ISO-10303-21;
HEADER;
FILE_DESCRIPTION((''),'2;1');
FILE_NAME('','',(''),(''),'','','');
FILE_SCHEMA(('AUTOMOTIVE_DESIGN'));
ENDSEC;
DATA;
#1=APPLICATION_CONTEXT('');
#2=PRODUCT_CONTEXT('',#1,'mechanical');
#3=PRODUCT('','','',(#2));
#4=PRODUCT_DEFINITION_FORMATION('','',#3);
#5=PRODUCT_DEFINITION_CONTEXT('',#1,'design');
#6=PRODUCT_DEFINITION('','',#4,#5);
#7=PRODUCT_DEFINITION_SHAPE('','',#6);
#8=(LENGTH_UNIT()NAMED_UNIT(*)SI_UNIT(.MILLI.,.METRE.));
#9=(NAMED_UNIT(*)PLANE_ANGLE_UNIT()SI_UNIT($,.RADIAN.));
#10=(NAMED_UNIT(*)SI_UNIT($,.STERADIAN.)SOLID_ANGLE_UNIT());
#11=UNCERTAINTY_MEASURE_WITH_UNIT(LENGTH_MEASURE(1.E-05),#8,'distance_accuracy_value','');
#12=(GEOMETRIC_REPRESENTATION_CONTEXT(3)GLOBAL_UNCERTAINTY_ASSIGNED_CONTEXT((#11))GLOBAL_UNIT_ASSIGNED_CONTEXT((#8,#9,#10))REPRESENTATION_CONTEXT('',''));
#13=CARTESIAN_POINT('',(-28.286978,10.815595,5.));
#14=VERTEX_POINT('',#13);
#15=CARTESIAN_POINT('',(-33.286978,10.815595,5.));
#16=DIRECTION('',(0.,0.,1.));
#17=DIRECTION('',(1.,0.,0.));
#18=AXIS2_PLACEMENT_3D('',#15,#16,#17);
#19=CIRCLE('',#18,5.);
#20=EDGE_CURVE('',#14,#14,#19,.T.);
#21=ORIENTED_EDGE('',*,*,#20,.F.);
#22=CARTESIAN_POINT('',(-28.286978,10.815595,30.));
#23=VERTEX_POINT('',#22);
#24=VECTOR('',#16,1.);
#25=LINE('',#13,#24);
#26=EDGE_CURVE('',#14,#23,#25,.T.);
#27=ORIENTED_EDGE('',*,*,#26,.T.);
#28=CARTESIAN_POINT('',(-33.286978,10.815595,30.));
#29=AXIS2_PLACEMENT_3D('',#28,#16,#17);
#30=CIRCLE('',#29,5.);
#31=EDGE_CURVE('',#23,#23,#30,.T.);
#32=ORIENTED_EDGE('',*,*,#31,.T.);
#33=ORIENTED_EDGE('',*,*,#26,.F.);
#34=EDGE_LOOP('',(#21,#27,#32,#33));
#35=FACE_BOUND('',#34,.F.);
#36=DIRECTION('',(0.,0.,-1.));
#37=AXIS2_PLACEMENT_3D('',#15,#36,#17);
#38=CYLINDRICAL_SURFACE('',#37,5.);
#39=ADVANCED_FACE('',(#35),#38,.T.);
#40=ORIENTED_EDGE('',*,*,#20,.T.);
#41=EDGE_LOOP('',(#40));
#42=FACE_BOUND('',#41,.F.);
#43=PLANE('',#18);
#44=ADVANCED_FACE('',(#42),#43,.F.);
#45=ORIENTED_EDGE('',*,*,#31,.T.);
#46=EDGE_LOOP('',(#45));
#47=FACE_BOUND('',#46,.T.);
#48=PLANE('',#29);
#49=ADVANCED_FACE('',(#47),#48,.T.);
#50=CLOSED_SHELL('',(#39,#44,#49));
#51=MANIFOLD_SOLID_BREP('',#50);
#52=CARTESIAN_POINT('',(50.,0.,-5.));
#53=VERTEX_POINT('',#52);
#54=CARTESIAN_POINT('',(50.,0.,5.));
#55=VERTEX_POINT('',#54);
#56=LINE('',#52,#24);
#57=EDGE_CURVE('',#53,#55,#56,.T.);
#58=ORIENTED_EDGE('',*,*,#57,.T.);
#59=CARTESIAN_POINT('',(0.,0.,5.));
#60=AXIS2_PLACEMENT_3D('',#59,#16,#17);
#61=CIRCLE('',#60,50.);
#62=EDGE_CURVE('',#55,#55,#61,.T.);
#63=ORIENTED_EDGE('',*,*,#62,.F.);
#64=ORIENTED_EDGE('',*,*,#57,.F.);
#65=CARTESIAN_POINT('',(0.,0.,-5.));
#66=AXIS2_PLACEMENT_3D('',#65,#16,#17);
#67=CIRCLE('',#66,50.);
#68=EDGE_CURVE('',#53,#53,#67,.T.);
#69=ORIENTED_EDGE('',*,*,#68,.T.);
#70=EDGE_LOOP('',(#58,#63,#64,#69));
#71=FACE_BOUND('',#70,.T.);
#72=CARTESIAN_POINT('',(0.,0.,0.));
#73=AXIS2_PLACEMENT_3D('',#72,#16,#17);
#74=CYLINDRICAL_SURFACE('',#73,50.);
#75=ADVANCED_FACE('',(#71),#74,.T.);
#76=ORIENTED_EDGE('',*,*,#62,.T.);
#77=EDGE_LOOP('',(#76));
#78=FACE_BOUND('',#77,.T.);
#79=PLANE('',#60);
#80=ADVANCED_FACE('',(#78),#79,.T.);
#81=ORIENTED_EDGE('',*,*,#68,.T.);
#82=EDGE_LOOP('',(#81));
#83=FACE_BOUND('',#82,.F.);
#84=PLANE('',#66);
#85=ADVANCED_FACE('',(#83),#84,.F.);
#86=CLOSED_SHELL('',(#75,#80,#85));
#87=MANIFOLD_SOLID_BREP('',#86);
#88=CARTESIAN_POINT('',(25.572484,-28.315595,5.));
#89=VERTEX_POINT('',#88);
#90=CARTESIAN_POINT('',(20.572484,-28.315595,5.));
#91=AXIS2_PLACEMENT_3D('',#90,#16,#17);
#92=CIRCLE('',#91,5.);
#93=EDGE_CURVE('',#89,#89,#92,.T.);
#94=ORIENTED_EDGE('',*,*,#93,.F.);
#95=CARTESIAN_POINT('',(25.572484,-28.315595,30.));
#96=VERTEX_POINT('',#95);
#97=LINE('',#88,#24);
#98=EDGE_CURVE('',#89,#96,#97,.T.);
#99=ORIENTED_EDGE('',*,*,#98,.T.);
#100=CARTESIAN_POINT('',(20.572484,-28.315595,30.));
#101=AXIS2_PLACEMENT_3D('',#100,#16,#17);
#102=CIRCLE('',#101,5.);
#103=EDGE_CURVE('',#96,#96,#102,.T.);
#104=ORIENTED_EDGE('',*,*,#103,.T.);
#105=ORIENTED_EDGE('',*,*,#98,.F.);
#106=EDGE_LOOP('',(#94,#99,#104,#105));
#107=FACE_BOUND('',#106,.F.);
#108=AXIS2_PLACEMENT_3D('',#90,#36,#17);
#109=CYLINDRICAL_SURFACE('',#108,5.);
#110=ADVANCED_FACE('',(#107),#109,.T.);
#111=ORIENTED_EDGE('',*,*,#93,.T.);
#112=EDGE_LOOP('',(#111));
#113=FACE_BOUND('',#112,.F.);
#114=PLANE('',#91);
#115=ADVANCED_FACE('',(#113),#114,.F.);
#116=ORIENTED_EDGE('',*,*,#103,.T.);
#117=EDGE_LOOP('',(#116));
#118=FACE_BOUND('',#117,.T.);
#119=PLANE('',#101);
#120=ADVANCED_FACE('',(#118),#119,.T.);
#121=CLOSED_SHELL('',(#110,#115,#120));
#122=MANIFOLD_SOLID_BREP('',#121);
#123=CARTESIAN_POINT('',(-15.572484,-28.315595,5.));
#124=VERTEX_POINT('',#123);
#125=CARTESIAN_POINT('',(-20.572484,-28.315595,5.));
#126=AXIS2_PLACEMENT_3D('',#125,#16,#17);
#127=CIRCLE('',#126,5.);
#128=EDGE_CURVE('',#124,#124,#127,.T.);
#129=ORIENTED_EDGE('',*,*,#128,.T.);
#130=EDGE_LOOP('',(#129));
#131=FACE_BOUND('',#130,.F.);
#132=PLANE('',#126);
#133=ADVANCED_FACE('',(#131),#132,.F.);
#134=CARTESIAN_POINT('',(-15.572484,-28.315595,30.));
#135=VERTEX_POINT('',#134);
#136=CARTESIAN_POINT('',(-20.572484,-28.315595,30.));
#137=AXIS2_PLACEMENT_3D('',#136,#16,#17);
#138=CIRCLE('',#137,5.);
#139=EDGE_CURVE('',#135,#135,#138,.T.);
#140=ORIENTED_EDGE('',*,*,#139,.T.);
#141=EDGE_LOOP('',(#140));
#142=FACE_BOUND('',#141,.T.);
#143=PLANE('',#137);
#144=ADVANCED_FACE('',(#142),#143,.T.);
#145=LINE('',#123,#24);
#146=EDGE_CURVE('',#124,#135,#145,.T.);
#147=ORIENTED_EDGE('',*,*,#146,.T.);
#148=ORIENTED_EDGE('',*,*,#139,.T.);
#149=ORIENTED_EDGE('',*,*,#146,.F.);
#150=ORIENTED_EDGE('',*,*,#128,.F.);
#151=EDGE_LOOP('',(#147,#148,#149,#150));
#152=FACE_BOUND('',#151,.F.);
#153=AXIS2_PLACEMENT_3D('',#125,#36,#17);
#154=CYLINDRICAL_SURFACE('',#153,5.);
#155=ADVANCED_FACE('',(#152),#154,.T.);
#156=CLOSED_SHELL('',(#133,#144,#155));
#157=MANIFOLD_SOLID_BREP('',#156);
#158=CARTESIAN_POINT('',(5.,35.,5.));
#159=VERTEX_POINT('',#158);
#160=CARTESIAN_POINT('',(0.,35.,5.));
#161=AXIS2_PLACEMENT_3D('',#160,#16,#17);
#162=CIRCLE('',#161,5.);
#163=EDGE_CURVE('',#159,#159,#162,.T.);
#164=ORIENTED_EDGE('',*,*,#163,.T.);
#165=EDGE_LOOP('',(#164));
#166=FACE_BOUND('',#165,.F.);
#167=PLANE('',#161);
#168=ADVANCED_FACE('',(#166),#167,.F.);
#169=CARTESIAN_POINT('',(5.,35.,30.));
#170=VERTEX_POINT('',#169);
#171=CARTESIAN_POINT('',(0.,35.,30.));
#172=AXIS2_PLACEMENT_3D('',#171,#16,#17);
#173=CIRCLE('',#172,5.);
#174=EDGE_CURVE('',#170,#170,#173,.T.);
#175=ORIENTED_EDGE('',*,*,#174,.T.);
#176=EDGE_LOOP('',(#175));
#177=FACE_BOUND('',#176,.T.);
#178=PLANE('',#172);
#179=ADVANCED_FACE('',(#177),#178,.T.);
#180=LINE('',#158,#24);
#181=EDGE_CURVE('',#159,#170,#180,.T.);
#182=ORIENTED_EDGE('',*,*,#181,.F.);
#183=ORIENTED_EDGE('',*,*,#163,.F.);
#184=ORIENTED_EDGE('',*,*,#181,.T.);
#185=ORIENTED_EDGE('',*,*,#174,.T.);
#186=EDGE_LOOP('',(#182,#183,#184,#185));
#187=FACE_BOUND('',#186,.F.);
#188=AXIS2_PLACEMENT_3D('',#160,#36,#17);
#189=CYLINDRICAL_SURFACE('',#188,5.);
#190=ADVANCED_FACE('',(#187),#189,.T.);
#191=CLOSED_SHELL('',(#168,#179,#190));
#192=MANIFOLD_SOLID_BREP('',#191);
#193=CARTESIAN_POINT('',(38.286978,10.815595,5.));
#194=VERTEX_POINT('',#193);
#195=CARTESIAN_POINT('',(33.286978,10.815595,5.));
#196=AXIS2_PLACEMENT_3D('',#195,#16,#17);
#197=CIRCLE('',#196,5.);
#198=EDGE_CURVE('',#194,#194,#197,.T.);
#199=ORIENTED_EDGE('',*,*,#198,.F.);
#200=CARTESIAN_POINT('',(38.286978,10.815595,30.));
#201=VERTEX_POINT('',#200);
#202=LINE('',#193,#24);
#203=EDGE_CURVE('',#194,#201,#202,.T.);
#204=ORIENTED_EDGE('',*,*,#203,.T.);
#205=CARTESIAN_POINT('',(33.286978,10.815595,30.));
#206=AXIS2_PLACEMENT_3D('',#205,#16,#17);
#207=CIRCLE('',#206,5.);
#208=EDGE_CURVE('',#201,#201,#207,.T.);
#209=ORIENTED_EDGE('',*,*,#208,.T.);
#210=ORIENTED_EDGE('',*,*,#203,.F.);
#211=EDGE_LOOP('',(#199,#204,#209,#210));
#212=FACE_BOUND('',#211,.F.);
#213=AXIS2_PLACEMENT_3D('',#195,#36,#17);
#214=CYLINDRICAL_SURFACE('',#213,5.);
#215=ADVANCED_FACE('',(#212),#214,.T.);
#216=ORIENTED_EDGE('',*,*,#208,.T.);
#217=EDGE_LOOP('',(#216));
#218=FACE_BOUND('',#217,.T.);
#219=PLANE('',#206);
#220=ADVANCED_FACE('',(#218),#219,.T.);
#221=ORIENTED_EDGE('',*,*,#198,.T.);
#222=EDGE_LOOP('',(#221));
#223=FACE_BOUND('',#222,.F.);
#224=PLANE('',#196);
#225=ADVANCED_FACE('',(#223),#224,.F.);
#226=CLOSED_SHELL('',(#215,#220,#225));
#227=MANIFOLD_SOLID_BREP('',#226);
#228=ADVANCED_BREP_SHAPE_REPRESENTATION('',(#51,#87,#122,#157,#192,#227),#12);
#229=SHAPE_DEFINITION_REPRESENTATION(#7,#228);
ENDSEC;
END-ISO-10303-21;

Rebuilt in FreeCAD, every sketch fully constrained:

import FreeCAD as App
import Part
import Sketcher
from FreeCAD import Vector

doc = App.newDocument("Part")
params = doc.addObject("Spreadsheet::Sheet", "Params")
for row, (alias, value) in enumerate([
    ("sketch1_diameter", "100 mm"),
    ("pad1_length", "10 mm"),
    ("sketch2_diameter", "10 mm"),
    ("pad2_length", "25 mm"),
], start=1):
    params.set(f"A{row}", alias)
    params.set(f"B{row}", "=" + value)
    params.setAlias(f"B{row}", alias)

body = doc.addObject("PartDesign::Body", "Body")

sketch1 = doc.addObject("Sketcher::SketchObject", "Sketch")
body.addObject(sketch1)
sketch1.AttachmentSupport = (doc.XY_Plane, [""])
sketch1.MapMode = "FlatFace"
sketch1.addGeometry(Part.Circle(Vector(0, 0, 0), Vector(0, 0, 1), 50), False)
sketch1.addConstraint([
    Sketcher.Constraint("Coincident", 0, 3, -1, 1),
    Sketcher.Constraint("Diameter", 0, 100.0),
])
sketch1.setExpression("Constraints[1]", "Params.sketch1_diameter")
pad1 = doc.addObject("PartDesign::Pad", "Pad")
body.addObject(pad1)
pad1.Profile = sketch1
pad1.setExpression("Length", "Params.pad1_length")
pad1.Midplane = True
body2 = doc.addObject("PartDesign::Body", "Body001")
body2.AllowCompound = True

sketch2 = doc.addObject("Sketcher::SketchObject", "Sketch001")
body2.addObject(sketch2)
sketch2.AttachmentSupport = (doc.getObject("XY_Plane001"), [""])
sketch2.MapMode = "FlatFace"
sketch2.AttachmentOffset = App.Placement(Vector(0, 0, 5), App.Rotation())
sketch2.addGeometry([
    Part.Circle(Vector(0, 35, 0), Vector(0, 0, 1), 5),
    Part.Circle(Vector(-33.286978, 10.815595, 0), Vector(0, 0, 1), 5),
    Part.Circle(Vector(-20.572484, -28.315595, 0), Vector(0, 0, 1), 5),
    Part.Circle(Vector(20.572484, -28.315595, 0), Vector(0, 0, 1), 5),
    Part.Circle(Vector(33.286978, 10.815595, 0), Vector(0, 0, 1), 5),
], False)
sketch2.addConstraint([
    Sketcher.Constraint("Equal", 0, 1),
    Sketcher.Constraint("Equal", 1, 2),
    Sketcher.Constraint("Equal", 2, 3),
    Sketcher.Constraint("Equal", 3, 4),
    Sketcher.Constraint("Symmetric", 2, 3, 3, 3, -2),
    Sketcher.Constraint("Symmetric", 1, 3, 4, 3, -2),
    Sketcher.Constraint("PointOnObject", 0, 3, -2),
    Sketcher.Constraint("Diameter", 0, 10.0),
    Sketcher.Constraint("DistanceY", -1, 1, 0, 3, 35.0),
    Sketcher.Constraint("DistanceY", 2, 3, 1, 3, 39.13119),
    Sketcher.Constraint("DistanceX", 1, 3, 3, 3, 53.859462),
    Sketcher.Constraint("DistanceX", 1, 3, -1, 1, 33.286978),
    Sketcher.Constraint("DistanceY", -1, 1, 1, 3, 10.815595),
])
sketch2.setExpression("Constraints[7]", "Params.sketch2_diameter")
pad2 = doc.addObject("PartDesign::Pad", "Pad001")
body2.addObject(pad2)
pad2.Profile = sketch2
pad2.setExpression("Length", "Params.pad2_length")

doc.recompute()
